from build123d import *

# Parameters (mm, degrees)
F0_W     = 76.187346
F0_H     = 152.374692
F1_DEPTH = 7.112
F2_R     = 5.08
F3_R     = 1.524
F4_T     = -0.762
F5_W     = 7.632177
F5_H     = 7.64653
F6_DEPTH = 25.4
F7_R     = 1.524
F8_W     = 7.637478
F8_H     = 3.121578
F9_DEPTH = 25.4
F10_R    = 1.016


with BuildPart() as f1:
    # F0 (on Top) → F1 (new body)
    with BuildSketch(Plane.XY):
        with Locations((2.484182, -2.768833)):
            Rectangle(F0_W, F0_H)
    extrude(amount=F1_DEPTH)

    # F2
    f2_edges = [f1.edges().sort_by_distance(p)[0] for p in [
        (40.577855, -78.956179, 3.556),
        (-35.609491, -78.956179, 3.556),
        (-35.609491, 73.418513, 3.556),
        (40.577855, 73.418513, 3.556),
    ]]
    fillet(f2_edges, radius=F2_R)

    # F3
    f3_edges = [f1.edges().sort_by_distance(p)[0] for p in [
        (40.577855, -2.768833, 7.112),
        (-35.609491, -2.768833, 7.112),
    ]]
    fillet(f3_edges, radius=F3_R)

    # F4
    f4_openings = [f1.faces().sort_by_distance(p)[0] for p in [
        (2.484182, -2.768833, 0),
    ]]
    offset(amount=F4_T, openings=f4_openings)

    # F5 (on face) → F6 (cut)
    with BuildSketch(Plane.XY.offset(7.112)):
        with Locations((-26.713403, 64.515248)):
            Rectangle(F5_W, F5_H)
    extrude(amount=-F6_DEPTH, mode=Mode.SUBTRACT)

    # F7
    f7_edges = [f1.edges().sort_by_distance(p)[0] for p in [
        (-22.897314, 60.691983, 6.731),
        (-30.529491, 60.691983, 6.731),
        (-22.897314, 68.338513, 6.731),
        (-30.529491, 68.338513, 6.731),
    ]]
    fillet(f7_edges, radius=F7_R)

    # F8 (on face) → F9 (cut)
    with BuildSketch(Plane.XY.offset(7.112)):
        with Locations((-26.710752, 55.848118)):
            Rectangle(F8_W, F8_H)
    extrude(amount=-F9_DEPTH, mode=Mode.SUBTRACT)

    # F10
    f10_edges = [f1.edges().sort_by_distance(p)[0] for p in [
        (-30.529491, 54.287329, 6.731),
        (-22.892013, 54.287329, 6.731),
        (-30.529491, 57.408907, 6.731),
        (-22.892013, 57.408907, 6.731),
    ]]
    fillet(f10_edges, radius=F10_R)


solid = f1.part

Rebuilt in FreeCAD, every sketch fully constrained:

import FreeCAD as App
import Part
import Sketcher
Q = App.Units.Quantity


def edges_at(feature, points):
    """Names of the edges that pass closest to the given points."""
    edges = feature.Shape.Edges
    near = lambda p: min(range(len(edges)), key=lambda i: edges[i].distToShape(Part.Vertex(*p))[0])
    return sorted({f"Edge{near(p) + 1}" for p in points})


def faces_at(feature, points):
    """Names of the faces that lie closest to the given points."""
    faces = feature.Shape.Faces
    near = lambda p: min(range(len(faces)), key=lambda i: faces[i].distToShape(Part.Vertex(*p))[0])
    return sorted({f"Face{near(p) + 1}" for p in points})


def add_polygon(sketch, points):
    """Adds a closed chain of lines whose ends are joined by coincident constraints."""
    first, n = sketch.GeometryCount, len(points)
    for a, b in zip(points, points[1:] + points[:1]):
        sketch.addGeometry(Part.LineSegment(App.Vector(*a, 0), App.Vector(*b, 0)), False)
    for i in range(n):
        sketch.addConstraint(Sketcher.Constraint("Coincident", first + i, 2, first + (i + 1) % n, 1))

doc = App.newDocument("Part")
params = doc.addObject("Spreadsheet::Sheet", "Params")
for row, (alias, value) in enumerate([
    ("pad1_length", "0.28 in"),
    ("fillet_radius", "0.2 in"),
    ("fillet2_radius", "0.06 in"),
    ("thickness_wall", "0.03 in"),
    ("pocket1_length", "1 in"),
    ("fillet3_radius", "0.06 in"),
    ("pocket2_length", "1 in"),
    ("fillet4_radius", "0.04 in"),
], start=1):
    params.set(f"A{row}", alias)
    params.set(f"B{row}", "=" + value)
    params.setAlias(f"B{row}", alias)

body = doc.addObject("PartDesign::Body", "Body")

sketch1 = doc.addObject("Sketcher::SketchObject", "Sketch")
body.addObject(sketch1)
sketch1.AttachmentSupport = (doc.XY_Plane, [""])
sketch1.MapMode = "FlatFace"
add_polygon(sketch1, [(-35.609491, 73.418513), (-35.609491, -78.956179), (40.577855, -78.956179), (40.577855, 73.418513)])
sketch1.addConstraint([
    Sketcher.Constraint("Vertical", 0),
    Sketcher.Constraint("Horizontal", 1),
    Sketcher.Constraint("Vertical", 2),
    Sketcher.Constraint("Horizontal", 3),
    Sketcher.Constraint("DistanceX", 1, 1, 1, 2, Q("76.187346 mm")),
    Sketcher.Constraint("DistanceY", 0, 2, 0, 1, Q("152.374692 mm")),
    Sketcher.Constraint("DistanceX", 0, 2, -1, 1, Q("35.609491 mm")),
    Sketcher.Constraint("DistanceY", 0, 2, -1, 1, Q("78.956179 mm")),
])
pad1 = doc.addObject("PartDesign::Pad", "Pad")
body.addObject(pad1)
pad1.Profile = sketch1
pad1.setExpression("Length", "Params.pad1_length")
doc.recompute()

fillet = doc.addObject("PartDesign::Fillet", "Fillet")
body.addObject(fillet)
fillet.Base = (pad1, edges_at(pad1, [
    (40.578, -78.956, 3.556),
    (-35.609, -78.956, 3.556),
    (-35.609, 73.419, 3.556),
    (40.578, 73.419, 3.556),
]))
fillet.setExpression("Radius", "Params.fillet_radius")
doc.recompute()

fillet2 = doc.addObject("PartDesign::Fillet", "Fillet001")
body.addObject(fillet2)
fillet2.Base = (fillet, edges_at(fillet, [(40.578, -2.769, 7.112), (-35.609, -2.769, 7.112)]))
fillet2.setExpression("Radius", "Params.fillet2_radius")
doc.recompute()

thickness = doc.addObject("PartDesign::Thickness", "Thickness")
body.addObject(thickness)
thickness.Base = (fillet2, faces_at(fillet2, [(2.484, -2.769, 0)]))
thickness.setExpression("Value", "Params.thickness_wall")
thickness.Reversed = True
thickness.Join = "Arc"

sketch2 = doc.addObject("Sketcher::SketchObject", "Sketch001")
body.addObject(sketch2)
sketch2.AttachmentSupport = (doc.XY_Plane, [""])
sketch2.MapMode = "FlatFace"
sketch2.AttachmentOffset = App.Placement(App.Vector(0, 0, 0.28 * 25.4), App.Rotation())
add_polygon(sketch2, [(-30.529491, 68.338513), (-30.529491, 60.691983), (-22.897315, 60.691983), (-22.897315, 68.338513)])
sketch2.addConstraint([
    Sketcher.Constraint("Vertical", 0),
    Sketcher.Constraint("Horizontal", 1),
    Sketcher.Constraint("Vertical", 2),
    Sketcher.Constraint("Horizontal", 3),
    Sketcher.Constraint("DistanceY", 0, 2, 0, 1, Q("7.64653 mm")),
    Sketcher.Constraint("DistanceX", 1, 1, 1, 2, Q("7.632177 mm")),
    Sketcher.Constraint("DistanceX", 0, 2, -1, 1, Q("30.529491 mm")),
    Sketcher.Constraint("DistanceY", -1, 1, 0, 2, Q("60.691983 mm")),
])
pocket1 = doc.addObject("PartDesign::Pocket", "Pocket")
body.addObject(pocket1)
pocket1.Profile = sketch2
pocket1.setExpression("Length", "Params.pocket1_length")
doc.recompute()

fillet3 = doc.addObject("PartDesign::Fillet", "Fillet002")
body.addObject(fillet3)
fillet3.Base = (pocket1, edges_at(pocket1, [
    (-22.897, 60.692, 6.731),
    (-30.529, 60.692, 6.731),
    (-22.897, 68.339, 6.731),
    (-30.529, 68.339, 6.731),
]))
fillet3.setExpression("Radius", "Params.fillet3_radius")

sketch3 = doc.addObject("Sketcher::SketchObject", "Sketch002")
body.addObject(sketch3)
sketch3.AttachmentSupport = (doc.XY_Plane, [""])
sketch3.MapMode = "FlatFace"
sketch3.AttachmentOffset = App.Placement(App.Vector(0, 0, 0.28 * 25.4), App.Rotation())
add_polygon(sketch3, [(-30.529491, 57.408907), (-30.529491, 54.287329), (-22.892013, 54.287329), (-22.892013, 57.408907)])
sketch3.addConstraint([
    Sketcher.Constraint("Vertical", 0),
    Sketcher.Constraint("Horizontal", 1),
    Sketcher.Constraint("Vertical", 2),
    Sketcher.Constraint("Horizontal", 3),
    Sketcher.Constraint("DistanceX", 1, 1, 1, 2, Q("7.637478 mm")),
    Sketcher.Constraint("DistanceY", 0, 2, 0, 1, Q("3.121578 mm")),
    Sketcher.Constraint("DistanceX", 0, 2, -1, 1, Q("30.529491 mm")),
    Sketcher.Constraint("DistanceY", -1, 1, 0, 2, Q("54.287329 mm")),
])
pocket2 = doc.addObject("PartDesign::Pocket", "Pocket001")
body.addObject(pocket2)
pocket2.Profile = sketch3
pocket2.setExpression("Length", "Params.pocket2_length")
doc.recompute()

fillet4 = doc.addObject("PartDesign::Fillet", "Fillet003")
body.addObject(fillet4)
fillet4.Base = (pocket2, edges_at(pocket2, [
    (-30.529, 54.287, 6.731),
    (-22.892, 54.287, 6.731),
    (-30.529, 57.409, 6.731),
    (-22.892, 57.409, 6.731),
]))
fillet4.setExpression("Radius", "Params.fillet4_radius")

doc.recompute()
